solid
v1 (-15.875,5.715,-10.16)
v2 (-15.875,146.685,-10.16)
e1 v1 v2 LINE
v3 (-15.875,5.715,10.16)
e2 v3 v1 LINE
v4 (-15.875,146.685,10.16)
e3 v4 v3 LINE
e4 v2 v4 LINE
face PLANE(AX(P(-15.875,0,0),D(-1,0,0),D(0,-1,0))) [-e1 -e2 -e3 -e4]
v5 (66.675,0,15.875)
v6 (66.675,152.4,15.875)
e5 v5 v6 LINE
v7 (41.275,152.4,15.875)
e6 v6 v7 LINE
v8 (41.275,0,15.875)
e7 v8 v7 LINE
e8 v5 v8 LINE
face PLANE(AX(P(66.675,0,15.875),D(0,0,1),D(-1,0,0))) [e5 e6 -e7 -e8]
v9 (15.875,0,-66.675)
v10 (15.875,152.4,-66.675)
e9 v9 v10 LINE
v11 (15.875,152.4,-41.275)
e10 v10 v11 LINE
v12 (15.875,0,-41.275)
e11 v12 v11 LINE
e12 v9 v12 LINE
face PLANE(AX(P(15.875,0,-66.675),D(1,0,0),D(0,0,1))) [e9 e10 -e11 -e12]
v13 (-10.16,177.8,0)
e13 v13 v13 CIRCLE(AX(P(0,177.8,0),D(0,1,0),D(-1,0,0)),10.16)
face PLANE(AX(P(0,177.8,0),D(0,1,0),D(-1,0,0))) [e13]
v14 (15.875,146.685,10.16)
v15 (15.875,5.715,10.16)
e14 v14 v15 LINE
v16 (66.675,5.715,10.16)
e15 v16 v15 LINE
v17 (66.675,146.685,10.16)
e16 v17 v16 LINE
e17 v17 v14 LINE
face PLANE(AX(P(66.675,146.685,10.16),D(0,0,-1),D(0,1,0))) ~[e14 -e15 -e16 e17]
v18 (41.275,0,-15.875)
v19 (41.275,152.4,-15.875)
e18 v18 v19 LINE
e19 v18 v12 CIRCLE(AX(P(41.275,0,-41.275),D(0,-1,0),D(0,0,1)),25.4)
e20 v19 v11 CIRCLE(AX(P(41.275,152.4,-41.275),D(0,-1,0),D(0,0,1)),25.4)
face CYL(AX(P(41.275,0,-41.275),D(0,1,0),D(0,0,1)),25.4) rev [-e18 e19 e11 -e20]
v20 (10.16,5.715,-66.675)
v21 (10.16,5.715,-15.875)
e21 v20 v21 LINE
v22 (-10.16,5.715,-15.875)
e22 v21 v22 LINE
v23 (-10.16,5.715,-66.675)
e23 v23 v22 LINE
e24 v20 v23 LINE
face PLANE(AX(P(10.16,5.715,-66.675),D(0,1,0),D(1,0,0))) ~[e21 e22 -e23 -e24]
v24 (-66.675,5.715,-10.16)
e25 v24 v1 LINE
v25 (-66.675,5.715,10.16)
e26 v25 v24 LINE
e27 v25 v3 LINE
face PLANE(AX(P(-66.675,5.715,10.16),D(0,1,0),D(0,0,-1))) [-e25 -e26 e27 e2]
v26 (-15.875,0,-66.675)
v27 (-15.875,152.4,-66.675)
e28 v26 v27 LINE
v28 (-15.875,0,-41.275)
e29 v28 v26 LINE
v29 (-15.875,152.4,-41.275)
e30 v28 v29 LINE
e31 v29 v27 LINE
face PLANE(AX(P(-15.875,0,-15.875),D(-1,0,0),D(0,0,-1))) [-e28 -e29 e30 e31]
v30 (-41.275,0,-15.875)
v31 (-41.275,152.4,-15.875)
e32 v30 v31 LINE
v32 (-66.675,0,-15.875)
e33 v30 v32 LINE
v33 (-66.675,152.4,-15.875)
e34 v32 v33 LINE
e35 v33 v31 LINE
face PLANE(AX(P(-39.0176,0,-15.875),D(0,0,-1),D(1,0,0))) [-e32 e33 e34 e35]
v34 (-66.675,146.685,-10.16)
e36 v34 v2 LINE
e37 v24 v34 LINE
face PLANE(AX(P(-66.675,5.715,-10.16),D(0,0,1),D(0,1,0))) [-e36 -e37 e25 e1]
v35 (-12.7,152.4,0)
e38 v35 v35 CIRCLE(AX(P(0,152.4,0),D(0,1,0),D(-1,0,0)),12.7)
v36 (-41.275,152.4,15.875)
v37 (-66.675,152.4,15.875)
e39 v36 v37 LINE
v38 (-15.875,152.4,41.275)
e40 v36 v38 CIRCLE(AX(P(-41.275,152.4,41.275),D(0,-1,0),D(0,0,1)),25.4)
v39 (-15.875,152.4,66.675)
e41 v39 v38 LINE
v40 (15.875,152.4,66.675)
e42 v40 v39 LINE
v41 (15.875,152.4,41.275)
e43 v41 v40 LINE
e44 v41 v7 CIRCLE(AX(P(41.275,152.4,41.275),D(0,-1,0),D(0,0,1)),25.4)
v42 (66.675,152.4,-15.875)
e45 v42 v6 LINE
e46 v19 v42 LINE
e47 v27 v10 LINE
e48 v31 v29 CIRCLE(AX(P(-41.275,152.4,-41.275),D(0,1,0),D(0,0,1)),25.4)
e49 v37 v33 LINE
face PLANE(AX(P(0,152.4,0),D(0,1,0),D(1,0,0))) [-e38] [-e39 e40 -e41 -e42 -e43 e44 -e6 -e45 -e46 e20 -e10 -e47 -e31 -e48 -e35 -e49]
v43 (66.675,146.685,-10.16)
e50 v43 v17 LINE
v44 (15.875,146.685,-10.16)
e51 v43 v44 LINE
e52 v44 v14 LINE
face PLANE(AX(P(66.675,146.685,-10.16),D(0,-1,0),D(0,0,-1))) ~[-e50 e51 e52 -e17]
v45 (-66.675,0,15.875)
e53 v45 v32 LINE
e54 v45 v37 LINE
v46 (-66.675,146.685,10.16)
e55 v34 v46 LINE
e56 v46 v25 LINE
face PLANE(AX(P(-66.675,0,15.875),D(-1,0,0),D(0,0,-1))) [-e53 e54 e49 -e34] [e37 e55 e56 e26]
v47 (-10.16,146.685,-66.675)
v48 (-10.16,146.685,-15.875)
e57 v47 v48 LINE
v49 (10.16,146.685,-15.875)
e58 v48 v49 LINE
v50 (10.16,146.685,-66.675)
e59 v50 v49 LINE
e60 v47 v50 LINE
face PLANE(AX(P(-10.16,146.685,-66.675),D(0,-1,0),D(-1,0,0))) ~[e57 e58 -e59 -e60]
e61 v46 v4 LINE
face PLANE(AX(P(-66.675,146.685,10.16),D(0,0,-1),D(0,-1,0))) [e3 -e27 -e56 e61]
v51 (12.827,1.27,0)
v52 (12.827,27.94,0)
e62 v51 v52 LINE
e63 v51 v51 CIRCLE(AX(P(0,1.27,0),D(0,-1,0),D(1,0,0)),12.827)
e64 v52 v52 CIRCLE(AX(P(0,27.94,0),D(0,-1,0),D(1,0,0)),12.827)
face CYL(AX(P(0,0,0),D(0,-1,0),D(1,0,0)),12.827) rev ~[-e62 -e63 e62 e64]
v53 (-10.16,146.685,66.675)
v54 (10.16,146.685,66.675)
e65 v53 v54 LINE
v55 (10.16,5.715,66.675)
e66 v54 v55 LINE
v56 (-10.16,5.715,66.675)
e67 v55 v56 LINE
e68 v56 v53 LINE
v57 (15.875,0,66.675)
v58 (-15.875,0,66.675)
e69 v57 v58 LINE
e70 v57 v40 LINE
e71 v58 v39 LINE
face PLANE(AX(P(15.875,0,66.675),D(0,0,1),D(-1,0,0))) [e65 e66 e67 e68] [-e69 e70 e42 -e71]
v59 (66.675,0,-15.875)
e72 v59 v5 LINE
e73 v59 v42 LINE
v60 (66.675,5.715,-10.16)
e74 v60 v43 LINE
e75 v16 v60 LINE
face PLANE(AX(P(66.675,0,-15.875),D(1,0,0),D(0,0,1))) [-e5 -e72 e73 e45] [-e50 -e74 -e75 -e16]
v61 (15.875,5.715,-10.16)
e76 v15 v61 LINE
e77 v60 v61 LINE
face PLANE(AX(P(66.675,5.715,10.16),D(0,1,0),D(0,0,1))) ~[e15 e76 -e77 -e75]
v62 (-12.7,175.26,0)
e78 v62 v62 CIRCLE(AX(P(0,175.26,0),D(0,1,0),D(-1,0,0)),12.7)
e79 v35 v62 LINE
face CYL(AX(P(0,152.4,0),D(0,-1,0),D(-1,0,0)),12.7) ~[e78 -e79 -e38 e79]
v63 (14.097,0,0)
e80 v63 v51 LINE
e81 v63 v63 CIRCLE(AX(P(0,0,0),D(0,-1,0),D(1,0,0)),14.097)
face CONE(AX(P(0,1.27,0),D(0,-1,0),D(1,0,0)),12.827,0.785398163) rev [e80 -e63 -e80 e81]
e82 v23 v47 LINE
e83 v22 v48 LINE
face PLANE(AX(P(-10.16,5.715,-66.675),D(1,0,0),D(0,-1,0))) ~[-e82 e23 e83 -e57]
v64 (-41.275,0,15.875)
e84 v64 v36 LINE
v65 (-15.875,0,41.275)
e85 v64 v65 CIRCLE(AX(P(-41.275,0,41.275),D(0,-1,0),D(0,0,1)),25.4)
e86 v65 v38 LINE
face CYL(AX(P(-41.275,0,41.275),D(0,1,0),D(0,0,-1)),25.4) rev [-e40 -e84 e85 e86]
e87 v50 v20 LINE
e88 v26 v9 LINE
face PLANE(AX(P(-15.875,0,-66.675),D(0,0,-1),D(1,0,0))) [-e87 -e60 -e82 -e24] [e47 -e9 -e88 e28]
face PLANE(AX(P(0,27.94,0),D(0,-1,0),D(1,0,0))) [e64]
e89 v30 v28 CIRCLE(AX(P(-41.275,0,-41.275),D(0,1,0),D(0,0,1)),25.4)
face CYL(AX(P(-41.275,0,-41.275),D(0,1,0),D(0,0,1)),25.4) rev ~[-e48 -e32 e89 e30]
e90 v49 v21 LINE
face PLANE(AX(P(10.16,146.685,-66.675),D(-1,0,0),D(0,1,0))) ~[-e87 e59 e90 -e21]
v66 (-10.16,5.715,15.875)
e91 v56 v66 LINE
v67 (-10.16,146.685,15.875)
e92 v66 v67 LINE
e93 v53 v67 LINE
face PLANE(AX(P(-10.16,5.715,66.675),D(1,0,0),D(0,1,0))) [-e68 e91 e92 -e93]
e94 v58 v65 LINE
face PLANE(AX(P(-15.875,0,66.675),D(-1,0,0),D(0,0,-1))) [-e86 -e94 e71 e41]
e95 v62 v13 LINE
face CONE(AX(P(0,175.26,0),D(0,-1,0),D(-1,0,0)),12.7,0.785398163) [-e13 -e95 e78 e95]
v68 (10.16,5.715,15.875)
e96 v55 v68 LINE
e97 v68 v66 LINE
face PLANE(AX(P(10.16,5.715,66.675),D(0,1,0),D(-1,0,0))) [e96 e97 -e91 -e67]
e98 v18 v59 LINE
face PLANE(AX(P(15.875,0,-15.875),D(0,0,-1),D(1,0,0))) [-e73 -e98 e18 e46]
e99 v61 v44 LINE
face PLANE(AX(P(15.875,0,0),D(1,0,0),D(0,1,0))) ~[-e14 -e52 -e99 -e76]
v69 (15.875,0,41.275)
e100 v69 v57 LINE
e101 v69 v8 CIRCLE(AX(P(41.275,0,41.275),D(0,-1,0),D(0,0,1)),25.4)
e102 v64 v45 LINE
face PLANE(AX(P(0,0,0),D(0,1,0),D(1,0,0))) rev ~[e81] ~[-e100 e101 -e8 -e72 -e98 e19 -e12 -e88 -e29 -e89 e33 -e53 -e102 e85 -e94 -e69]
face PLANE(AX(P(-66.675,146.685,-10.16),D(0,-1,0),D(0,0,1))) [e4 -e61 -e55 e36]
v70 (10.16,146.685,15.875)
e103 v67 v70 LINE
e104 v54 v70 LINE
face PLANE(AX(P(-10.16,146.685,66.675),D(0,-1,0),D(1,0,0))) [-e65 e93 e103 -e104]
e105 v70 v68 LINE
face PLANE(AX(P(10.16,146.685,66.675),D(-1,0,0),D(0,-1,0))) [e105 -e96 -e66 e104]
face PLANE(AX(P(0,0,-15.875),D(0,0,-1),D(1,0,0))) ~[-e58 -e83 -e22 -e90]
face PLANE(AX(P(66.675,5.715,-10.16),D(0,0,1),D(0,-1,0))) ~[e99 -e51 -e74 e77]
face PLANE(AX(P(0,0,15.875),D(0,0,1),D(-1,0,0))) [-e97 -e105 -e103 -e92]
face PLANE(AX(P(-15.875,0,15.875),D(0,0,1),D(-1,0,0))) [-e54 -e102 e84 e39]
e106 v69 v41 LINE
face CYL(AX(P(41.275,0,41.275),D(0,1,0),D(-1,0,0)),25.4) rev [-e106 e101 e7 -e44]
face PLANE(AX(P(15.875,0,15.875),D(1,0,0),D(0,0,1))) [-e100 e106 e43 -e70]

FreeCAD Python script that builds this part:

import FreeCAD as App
import Part
import Sketcher
from FreeCAD import Vector
Q = App.Units.Quantity


def edges_at(feature, points):
    """Names of the edges that pass closest to the given points."""
    edges = feature.Shape.Edges
    near = lambda p: min(range(len(edges)), key=lambda i: edges[i].distToShape(Part.Vertex(*p))[0])
    return sorted({f"Edge{near(p) + 1}" for p in points})


def add_polygon(sketch, points):
    """Adds a closed chain of lines whose ends are joined by coincident constraints."""
    first, n = sketch.GeometryCount, len(points)
    for a, b in zip(points, points[1:] + points[:1]):
        sketch.addGeometry(Part.LineSegment(App.Vector(*a, 0), App.Vector(*b, 0)), False)
    for i in range(n):
        sketch.addConstraint(Sketcher.Constraint("Coincident", first + i, 2, first + (i + 1) % n, 1))

doc = App.newDocument("Part")
body = doc.addObject("PartDesign::Body", "Body")

sketch1 = body.newObject("Sketcher::SketchObject", "Sketch")
sketch1.AttachmentSupport = (doc.getObject("XZ_Plane"), [""])
sketch1.MapMode = "FlatFace"
add_polygon(sketch1, [(-15.875, -15.875), (-66.675, -15.875), (-66.675, 15.875), (-15.875, 15.875), (-15.875, 66.675), (15.875, 66.675), (15.875, 15.875), (66.675, 15.875), (66.675, -15.875), (15.875, -15.875), (15.875, -66.675), (-15.875, -66.675)])
sketch1.addConstraint(Sketcher.Constraint("Horizontal", 0))
sketch1.addConstraint(Sketcher.Constraint("Vertical", 1))
sketch1.addConstraint(Sketcher.Constraint("Horizontal", 2))
sketch1.addConstraint(Sketcher.Constraint("Vertical", 3))
sketch1.addConstraint(Sketcher.Constraint("Horizontal", 4))
sketch1.addConstraint(Sketcher.Constraint("Vertical", 5))
sketch1.addConstraint(Sketcher.Constraint("Horizontal", 6))
sketch1.addConstraint(Sketcher.Constraint("Vertical", 7))
sketch1.addConstraint(Sketcher.Constraint("Horizontal", 8))
sketch1.addConstraint(Sketcher.Constraint("Vertical", 9))
sketch1.addConstraint(Sketcher.Constraint("Horizontal", 10))
sketch1.addConstraint(Sketcher.Constraint("Vertical", 11))
sketch1.addConstraint(Sketcher.Constraint("Symmetric", 0, 2, 6, 2, -1, 1))
sketch1.addConstraint(Sketcher.Constraint("Symmetric", 2, 2, 8, 2, -1, 1))
sketch1.addConstraint(Sketcher.Constraint("Symmetric", 4, 2, 10, 2, -1, 1))
sketch1.addConstraint(Sketcher.Constraint("Symmetric", 2, 2, 5, 2, -2))
sketch1.addConstraint(Sketcher.Constraint("Equal", 10, 1))
sketch1.addConstraint(Sketcher.Constraint("Equal", 8, 3))
sketch1.addConstraint(Sketcher.Constraint("DistanceX", 0, 2, 0, 1, Q("2 in")))
sketch1.addConstraint(Sketcher.Constraint("DistanceX", 4, 1, 4, 2, Q("1.25 in")))
pad1 = body.newObject("PartDesign::Pad", "Pad")
pad1.Profile = sketch1
pad1.Length = Q("6 in")
pad1.Reversed = True

sketch2 = body.newObject("Sketcher::SketchObject", "Sketch001")
sketch2.AttachmentSupport = (doc.getObject("YZ_Plane"), [""])
sketch2.MapMode = "FlatFace"
sketch2.AttachmentOffset = App.Placement(Vector(0, 0, -2.625 * 25.4), App.Rotation())
add_polygon(sketch2, [(5.715, 10.16), (146.685, 10.16), (146.685, -10.16), (5.715, -10.16)])
sketch2.addConstraint(Sketcher.Constraint("Horizontal", 0))
sketch2.addConstraint(Sketcher.Constraint("Vertical", 1))
sketch2.addConstraint(Sketcher.Constraint("Horizontal", 2))
sketch2.addConstraint(Sketcher.Constraint("Vertical", 3))
sketch2.addConstraint(Sketcher.Constraint("DistanceY", 1, 2, 1, 1, Q("0.8 in")))
sketch2.addConstraint(Sketcher.Constraint("DistanceX", 0, 1, 0, 2, Q("5.55 in")))
sketch2.addConstraint(Sketcher.Constraint("DistanceX", -1, 1, 2, 2, Q("0.225 in")))
sketch2.addConstraint(Sketcher.Constraint("DistanceY", -1, 1, 0, 2, Q("0.4 in")))
pocket1 = body.newObject("PartDesign::Pocket", "Pocket")
pocket1.Profile = sketch2
pocket1.Length = Q("2 in")
pocket1.Reversed = True
doc.recompute()

mirrored = body.newObject("PartDesign::Mirrored", "Mirrored")
mirrored.Originals = [pocket1]
mirrored.MirrorPlane = (doc.getObject("YZ_Plane"), [""])
body.Tip = mirrored
doc.recompute()

fillet = body.newObject("PartDesign::Fillet", "Fillet")
fillet.Base = (mirrored, edges_at(mirrored, [(15.875, 76.2, 15.875)]))
fillet.Radius = Q("1 in")
doc.recompute()

fillet2 = body.newObject("PartDesign::Fillet", "Fillet001")
fillet2.Base = (fillet, edges_at(fillet, [(-15.875, 76.2, 15.875), (-15.875, 76.2, -15.875), (15.875, 76.2, -15.875)]))
fillet2.Radius = Q("1 in")

sketch3 = body.newObject("Sketcher::SketchObject", "Sketch002")
sketch3.AttachmentSupport = (doc.getObject("XY_Plane"), [""])
sketch3.MapMode = "FlatFace"
sketch3.AttachmentOffset = App.Placement(Vector(0, 0, 2.625 * 25.4), App.Rotation())
add_polygon(sketch3, [(10.16, 146.685), (-10.16, 146.685), (-10.16, 5.715), (10.16, 5.715)])
sketch3.addConstraint(Sketcher.Constraint("Horizontal", 0))
sketch3.addConstraint(Sketcher.Constraint("Vertical", 1))
sketch3.addConstraint(Sketcher.Constraint("Horizontal", 2))
sketch3.addConstraint(Sketcher.Constraint("Vertical", 3))
sketch3.addConstraint(Sketcher.Constraint("DistanceX", 0, 2, 0, 1, Q("0.8 in")))
sketch3.addConstraint(Sketcher.Constraint("DistanceY", -1, 1, 1, 2, Q("0.225 in")))
sketch3.addConstraint(Sketcher.Constraint("DistanceY", 1, 2, 1, 1, Q("5.55 in")))
sketch3.addConstraint(Sketcher.Constraint("DistanceX", 0, 2, -1, 1, Q("0.4 in")))
pocket2 = body.newObject("PartDesign::Pocket", "Pocket001")
pocket2.Profile = sketch3
pocket2.Length = Q("2 in")
doc.recompute()

mirrored2 = body.newObject("PartDesign::Mirrored", "Mirrored001")
mirrored2.Originals = [pocket2]
mirrored2.MirrorPlane = (doc.getObject("XY_Plane"), [""])
body.Tip = mirrored2

sketch4 = body.newObject("Sketcher::SketchObject", "Sketch003")
sketch4.AttachmentSupport = (doc.getObject("XZ_Plane"), [""])
sketch4.MapMode = "FlatFace"
sketch4.AttachmentOffset = App.Placement(Vector(0, 0, -6 * 25.4), App.Rotation())
sketch4.addGeometry(Part.Circle(Vector(0, 0, 0), Vector(0, 0, 1), 12.7), False)
sketch4.addConstraint(Sketcher.Constraint("Coincident", 0, 3, -1, 1))
sketch4.addConstraint(Sketcher.Constraint("Diameter", 0, Q("1 in")))
pad2 = body.newObject("PartDesign::Pad", "Pad001")
pad2.Profile = sketch4
pad2.Length = Q("1 in")
pad2.Reversed = True
doc.recompute()

chamfer = body.newObject("PartDesign::Chamfer", "Chamfer")
chamfer.Base = (pad2, edges_at(pad2, [(11.841, 177.8, -4.593)]))
chamfer.Size = Q("0.1 in")

sketch5 = body.newObject("Sketcher::SketchObject", "Sketch004")
sketch5.AttachmentSupport = (doc.getObject("XZ_Plane"), [""])
sketch5.MapMode = "FlatFace"
sketch5.addGeometry(Part.Circle(Vector(0, 0, 0), Vector(0, 0, 1), 12.827), False)
sketch5.addConstraint(Sketcher.Constraint("Coincident", 0, 3, -1, 1))
sketch5.addConstraint(Sketcher.Constraint("Diameter", 0, Q("1.01 in")))
pocket3 = body.newObject("PartDesign::Pocket", "Pocket002")
pocket3.Profile = sketch5
pocket3.Length = Q("1.1 in")
doc.recompute()

chamfer2 = body.newObject("PartDesign::Chamfer", "Chamfer001")
chamfer2.Base = (pocket3, edges_at(pocket3, [(-11.959, 0, 4.638)]))
chamfer2.Size = Q("0.05 in")

doc.recompute()
